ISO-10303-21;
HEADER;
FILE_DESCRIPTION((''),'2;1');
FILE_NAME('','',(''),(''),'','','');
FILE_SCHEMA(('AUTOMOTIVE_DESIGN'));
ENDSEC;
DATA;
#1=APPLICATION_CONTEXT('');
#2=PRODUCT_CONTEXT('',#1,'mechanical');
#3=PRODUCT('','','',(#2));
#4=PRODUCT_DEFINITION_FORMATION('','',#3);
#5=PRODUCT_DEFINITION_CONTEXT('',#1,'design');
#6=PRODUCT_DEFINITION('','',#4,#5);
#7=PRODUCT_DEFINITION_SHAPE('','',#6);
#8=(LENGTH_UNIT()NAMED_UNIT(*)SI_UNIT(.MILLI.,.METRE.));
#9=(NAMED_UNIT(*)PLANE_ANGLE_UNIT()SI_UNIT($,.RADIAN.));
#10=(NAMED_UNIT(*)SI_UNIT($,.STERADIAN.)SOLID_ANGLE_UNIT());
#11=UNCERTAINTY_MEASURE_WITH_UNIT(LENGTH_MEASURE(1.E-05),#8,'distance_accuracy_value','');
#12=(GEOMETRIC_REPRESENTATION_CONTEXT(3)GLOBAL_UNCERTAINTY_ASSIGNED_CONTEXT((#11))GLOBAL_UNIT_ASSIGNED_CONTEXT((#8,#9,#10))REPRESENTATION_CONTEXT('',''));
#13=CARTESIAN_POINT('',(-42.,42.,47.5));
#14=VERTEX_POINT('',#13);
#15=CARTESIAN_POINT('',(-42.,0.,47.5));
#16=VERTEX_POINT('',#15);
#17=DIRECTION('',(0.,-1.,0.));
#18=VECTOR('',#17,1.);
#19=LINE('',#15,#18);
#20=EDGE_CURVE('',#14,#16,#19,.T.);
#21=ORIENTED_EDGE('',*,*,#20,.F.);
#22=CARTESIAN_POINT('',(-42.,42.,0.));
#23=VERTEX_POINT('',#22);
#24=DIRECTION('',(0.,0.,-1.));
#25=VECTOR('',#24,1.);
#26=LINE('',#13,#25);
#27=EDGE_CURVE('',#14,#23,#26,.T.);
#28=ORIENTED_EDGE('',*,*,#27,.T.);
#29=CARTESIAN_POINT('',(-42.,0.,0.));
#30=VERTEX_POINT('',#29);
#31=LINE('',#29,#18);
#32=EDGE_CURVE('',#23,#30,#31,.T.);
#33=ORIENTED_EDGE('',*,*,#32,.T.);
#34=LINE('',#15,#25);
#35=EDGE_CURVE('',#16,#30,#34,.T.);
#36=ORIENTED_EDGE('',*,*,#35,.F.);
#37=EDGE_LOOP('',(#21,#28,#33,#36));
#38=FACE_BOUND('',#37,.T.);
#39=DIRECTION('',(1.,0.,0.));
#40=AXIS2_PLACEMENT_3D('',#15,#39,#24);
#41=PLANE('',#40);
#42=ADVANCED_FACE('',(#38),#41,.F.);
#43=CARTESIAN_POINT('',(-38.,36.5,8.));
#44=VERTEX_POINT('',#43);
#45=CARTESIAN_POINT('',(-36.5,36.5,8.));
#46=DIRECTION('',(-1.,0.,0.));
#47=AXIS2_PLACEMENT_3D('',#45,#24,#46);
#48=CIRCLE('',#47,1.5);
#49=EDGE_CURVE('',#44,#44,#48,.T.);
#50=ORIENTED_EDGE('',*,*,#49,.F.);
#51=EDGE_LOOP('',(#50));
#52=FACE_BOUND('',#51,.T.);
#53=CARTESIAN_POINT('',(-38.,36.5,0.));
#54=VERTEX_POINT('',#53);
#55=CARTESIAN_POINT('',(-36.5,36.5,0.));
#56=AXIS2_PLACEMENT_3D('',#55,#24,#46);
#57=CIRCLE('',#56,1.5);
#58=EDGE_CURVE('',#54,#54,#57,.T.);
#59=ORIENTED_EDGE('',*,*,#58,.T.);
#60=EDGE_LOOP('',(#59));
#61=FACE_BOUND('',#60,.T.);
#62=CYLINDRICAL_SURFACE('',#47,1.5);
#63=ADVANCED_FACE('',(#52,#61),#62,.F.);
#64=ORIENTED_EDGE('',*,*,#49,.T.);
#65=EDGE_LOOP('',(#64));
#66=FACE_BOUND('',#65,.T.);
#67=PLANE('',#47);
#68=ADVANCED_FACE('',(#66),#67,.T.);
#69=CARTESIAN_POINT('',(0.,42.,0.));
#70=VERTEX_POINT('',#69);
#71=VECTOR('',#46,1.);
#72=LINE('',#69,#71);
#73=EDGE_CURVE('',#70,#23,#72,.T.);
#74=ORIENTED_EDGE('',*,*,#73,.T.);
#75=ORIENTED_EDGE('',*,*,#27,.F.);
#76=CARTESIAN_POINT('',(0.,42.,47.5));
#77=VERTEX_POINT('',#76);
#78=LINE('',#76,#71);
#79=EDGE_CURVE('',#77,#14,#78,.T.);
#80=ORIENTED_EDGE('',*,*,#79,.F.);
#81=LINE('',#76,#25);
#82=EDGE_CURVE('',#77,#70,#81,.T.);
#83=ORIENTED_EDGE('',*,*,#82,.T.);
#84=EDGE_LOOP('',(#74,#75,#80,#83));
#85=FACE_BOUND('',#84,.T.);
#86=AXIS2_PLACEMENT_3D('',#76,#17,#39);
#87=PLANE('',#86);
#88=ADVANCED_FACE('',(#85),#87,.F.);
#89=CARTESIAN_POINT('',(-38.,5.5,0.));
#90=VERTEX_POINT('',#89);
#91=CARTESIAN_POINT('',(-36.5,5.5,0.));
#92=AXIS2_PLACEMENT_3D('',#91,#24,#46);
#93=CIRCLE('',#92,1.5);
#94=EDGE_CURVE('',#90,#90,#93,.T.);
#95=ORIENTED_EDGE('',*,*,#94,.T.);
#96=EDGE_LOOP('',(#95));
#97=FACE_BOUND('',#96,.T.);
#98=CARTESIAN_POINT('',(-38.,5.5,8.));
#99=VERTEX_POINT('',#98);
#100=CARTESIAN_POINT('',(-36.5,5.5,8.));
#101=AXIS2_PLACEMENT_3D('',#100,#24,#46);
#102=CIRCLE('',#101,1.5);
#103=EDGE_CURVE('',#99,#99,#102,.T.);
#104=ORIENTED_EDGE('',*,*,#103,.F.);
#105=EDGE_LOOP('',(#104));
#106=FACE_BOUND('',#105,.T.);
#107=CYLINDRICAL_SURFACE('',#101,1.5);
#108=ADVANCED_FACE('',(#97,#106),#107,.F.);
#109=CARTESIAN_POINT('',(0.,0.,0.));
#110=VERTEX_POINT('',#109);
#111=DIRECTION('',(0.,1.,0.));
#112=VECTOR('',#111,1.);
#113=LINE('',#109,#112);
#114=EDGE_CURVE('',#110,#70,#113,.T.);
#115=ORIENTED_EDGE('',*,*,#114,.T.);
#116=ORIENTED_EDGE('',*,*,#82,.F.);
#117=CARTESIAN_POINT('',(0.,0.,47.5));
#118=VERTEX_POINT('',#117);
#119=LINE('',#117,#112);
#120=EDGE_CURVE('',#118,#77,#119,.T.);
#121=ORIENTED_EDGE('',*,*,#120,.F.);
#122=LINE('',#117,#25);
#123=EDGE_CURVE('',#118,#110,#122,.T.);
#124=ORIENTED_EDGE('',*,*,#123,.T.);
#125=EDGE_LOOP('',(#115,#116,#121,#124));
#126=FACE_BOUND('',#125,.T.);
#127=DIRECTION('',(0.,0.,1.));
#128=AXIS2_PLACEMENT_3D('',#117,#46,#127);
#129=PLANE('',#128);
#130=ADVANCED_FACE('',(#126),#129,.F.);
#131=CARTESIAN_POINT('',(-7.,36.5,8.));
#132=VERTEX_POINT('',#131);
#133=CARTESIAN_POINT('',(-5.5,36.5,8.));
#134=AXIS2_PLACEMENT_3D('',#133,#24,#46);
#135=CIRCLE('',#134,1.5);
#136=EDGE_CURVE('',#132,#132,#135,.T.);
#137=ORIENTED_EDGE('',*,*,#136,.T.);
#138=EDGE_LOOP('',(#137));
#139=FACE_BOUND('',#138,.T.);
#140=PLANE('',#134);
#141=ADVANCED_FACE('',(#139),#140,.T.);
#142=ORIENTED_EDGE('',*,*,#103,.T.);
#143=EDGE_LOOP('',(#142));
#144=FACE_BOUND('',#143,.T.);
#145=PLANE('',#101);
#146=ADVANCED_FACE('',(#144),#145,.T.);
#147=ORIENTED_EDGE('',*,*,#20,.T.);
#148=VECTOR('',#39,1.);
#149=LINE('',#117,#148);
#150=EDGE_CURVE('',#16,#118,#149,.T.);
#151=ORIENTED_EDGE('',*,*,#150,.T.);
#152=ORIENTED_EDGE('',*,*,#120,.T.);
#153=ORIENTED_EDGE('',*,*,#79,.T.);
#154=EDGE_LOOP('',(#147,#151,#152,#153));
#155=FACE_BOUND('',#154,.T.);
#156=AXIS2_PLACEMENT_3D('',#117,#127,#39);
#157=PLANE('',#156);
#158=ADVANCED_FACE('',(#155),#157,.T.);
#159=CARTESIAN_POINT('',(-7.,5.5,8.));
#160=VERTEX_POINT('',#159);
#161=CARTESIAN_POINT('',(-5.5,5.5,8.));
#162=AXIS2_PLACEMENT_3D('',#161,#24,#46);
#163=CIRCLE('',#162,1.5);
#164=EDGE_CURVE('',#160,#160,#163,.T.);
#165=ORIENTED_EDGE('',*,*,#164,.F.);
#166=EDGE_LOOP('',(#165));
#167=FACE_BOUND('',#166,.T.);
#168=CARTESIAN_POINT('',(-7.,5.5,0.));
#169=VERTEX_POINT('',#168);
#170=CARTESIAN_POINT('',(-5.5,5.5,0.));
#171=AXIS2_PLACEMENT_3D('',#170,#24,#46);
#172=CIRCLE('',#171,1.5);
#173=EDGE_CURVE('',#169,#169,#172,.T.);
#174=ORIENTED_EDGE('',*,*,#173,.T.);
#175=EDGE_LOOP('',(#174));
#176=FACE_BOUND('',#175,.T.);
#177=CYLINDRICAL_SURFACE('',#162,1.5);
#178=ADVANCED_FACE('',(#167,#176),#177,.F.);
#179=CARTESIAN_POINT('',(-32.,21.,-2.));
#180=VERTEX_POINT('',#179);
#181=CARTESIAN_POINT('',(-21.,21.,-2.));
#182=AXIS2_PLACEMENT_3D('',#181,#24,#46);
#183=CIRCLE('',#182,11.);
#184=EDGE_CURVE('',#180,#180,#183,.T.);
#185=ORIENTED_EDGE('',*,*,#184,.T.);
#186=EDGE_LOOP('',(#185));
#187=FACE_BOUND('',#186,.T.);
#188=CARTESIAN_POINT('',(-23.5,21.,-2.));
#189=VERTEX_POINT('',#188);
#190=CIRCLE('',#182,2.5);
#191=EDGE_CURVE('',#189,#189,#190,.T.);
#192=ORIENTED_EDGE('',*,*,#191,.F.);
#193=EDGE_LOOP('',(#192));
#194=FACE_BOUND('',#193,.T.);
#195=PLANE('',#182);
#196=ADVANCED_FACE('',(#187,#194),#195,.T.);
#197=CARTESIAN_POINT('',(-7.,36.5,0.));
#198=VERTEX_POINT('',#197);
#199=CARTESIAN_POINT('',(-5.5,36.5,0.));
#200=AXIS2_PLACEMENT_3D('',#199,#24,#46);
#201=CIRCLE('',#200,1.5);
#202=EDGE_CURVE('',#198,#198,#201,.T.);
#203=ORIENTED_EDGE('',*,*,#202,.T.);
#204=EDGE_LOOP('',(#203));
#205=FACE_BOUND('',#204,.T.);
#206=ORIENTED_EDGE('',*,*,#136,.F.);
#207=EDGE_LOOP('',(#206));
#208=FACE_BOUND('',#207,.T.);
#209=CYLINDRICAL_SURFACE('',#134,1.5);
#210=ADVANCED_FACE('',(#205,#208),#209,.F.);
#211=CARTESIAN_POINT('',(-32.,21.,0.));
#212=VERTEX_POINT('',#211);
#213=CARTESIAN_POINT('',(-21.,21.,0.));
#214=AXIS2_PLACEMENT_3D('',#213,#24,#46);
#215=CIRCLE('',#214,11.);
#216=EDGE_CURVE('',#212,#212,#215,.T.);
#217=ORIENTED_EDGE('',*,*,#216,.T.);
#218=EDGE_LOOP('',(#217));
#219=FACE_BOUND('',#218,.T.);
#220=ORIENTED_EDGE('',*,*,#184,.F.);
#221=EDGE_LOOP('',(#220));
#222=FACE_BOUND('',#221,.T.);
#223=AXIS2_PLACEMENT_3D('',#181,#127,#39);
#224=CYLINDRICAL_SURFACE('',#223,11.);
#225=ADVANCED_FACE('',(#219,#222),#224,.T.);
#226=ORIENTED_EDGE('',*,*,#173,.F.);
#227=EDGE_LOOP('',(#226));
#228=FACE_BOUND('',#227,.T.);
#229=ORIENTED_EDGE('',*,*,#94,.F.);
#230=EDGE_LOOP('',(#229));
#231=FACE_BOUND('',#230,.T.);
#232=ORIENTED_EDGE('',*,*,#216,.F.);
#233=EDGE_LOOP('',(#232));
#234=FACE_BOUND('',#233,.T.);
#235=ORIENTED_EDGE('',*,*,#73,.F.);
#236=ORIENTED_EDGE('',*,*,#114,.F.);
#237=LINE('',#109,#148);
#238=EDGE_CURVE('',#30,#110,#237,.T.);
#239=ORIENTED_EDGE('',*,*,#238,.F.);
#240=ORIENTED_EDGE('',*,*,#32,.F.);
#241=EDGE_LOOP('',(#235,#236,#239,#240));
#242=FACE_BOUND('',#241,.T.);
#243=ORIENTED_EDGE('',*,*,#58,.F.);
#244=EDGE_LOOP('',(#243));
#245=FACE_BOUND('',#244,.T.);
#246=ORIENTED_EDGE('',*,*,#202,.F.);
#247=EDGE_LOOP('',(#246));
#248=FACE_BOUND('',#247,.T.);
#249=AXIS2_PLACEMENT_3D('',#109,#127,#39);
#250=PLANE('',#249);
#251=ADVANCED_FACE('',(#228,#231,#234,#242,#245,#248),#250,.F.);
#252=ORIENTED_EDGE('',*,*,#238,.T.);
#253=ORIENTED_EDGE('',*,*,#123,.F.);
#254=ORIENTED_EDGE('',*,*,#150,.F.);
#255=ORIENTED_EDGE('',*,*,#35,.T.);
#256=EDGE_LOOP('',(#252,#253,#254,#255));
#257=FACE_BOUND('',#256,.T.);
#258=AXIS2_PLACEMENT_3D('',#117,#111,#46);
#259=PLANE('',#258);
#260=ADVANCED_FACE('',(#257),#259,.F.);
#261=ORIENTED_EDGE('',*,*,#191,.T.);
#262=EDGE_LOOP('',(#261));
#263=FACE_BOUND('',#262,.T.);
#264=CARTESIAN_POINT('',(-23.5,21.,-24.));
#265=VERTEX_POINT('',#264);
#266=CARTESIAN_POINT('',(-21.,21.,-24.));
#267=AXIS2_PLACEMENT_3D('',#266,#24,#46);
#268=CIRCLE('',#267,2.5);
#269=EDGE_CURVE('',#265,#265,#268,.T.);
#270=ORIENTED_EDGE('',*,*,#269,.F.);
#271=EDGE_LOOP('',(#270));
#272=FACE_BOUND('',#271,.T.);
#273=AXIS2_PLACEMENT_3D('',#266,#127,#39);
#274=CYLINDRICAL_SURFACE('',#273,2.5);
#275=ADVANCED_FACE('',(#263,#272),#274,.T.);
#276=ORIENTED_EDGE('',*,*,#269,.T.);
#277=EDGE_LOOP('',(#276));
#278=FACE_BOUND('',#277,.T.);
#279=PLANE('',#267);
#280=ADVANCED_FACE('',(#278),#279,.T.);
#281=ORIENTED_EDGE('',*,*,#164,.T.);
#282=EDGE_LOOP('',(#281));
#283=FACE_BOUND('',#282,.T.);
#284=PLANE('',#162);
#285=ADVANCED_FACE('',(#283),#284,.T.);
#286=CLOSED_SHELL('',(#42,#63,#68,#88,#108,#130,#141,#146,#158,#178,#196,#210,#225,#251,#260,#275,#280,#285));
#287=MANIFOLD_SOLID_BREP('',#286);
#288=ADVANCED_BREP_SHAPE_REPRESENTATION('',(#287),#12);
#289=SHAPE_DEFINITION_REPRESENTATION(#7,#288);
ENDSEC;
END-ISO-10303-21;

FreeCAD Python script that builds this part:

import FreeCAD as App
import Part
import Sketcher
from FreeCAD import Vector


def add_polygon(sketch, points):
    """Adds a closed chain of lines whose ends are joined by coincident constraints."""
    first, n = sketch.GeometryCount, len(points)
    for a, b in zip(points, points[1:] + points[:1]):
        sketch.addGeometry(Part.LineSegment(App.Vector(*a, 0), App.Vector(*b, 0)), False)
    for i in range(n):
        sketch.addConstraint(Sketcher.Constraint("Coincident", first + i, 2, first + (i + 1) % n, 1))

doc = App.newDocument("Part")
params = doc.addObject("Spreadsheet::Sheet", "Params")
for row, (alias, value) in enumerate([
    ("sketch1_width", "42 mm"),
    ("pad1_length", "47.5 mm"),
    ("sketch2_diameter", "22 mm"),
    ("pad2_length", "2 mm"),
    ("sketch3_diameter", "5 mm"),
    ("pad3_length", "22 mm"),
    ("sketch4_diameter", "3 mm"),
    ("pocket1_length", "8 mm"),
], start=1):
    params.set(f"A{row}", alias)
    params.set(f"B{row}", "=" + value)
    params.setAlias(f"B{row}", alias)

body = doc.addObject("PartDesign::Body", "Body")

# Sketch on XY plane
sketch1 = body.newObject("Sketcher::SketchObject", "Sketch")
sketch1.AttachmentSupport = (doc.getObject("XY_Plane"), [""])
sketch1.MapMode = "FlatFace"
add_polygon(sketch1, [(-42, 42), (-42, 0), (0, 0), (0, 42)])  # lines 0-3
sketch1.addConstraint([
    Sketcher.Constraint("Vertical", 0),
    Sketcher.Constraint("Horizontal", 1),
    Sketcher.Constraint("Vertical", 2),
    Sketcher.Constraint("Horizontal", 3),
    Sketcher.Constraint("Coincident", 1, 2, -1, 1),
    Sketcher.Constraint("Equal", 3, 0),
    Sketcher.Constraint("DistanceX", 1, 1, 1, 2, 42.0),
])
sketch1.setExpression("Constraints[10]", "Params.sketch1_width")
pad1 = body.newObject("PartDesign::Pad", "Pad")
pad1.Profile = sketch1
pad1.setExpression("Length", "Params.pad1_length")

# Sketch on XY plane
sketch2 = body.newObject("Sketcher::SketchObject", "Sketch001")
sketch2.AttachmentSupport = (doc.getObject("XY_Plane"), [""])
sketch2.MapMode = "FlatFace"
sketch2.addGeometry(Part.Circle(Vector(-21, 21, 0), Vector(0, 0, 1), 11), False)
sketch2.addConstraint([
    Sketcher.Constraint("Diameter", 0, 22.0),
    Sketcher.Constraint("DistanceX", 0, 3, -1, 1, 21.0),
    Sketcher.Constraint("DistanceY", -1, 1, 0, 3, 21.0),
])
sketch2.setExpression("Constraints[0]", "Params.sketch2_diameter")
pad2 = body.newObject("PartDesign::Pad", "Pad001")
pad2.Profile = sketch2
pad2.setExpression("Length", "Params.pad2_length")
pad2.Reversed = True

# Sketch on XY plane
sketch3 = body.newObject("Sketcher::SketchObject", "Sketch002")
sketch3.AttachmentSupport = (doc.getObject("XY_Plane"), [""])
sketch3.MapMode = "FlatFace"
sketch3.AttachmentOffset = App.Placement(Vector(0, 0, -2), App.Rotation())
sketch3.addGeometry(Part.Circle(Vector(-21, 21, 0), Vector(0, 0, 1), 2.5), False)
sketch3.addConstraint([
    Sketcher.Constraint("Diameter", 0, 5.0),
    Sketcher.Constraint("DistanceX", 0, 3, -1, 1, 21.0),
    Sketcher.Constraint("DistanceY", -1, 1, 0, 3, 21.0),
])
sketch3.setExpression("Constraints[0]", "Params.sketch3_diameter")
pad3 = body.newObject("PartDesign::Pad", "Pad002")
pad3.Profile = sketch3
pad3.setExpression("Length", "Params.pad3_length")
pad3.Reversed = True

# Sketch on XY plane
sketch4 = body.newObject("Sketcher::SketchObject", "Sketch003")
sketch4.AttachmentSupport = (doc.getObject("XY_Plane"), [""])
sketch4.MapMode = "FlatFace"
sketch4.addGeometry([
    Part.Circle(Vector(-5.5, 5.5, 0), Vector(0, 0, 1), 1.5),
    Part.Circle(Vector(-36.5, 5.5, 0), Vector(0, 0, 1), 1.5),
    Part.Circle(Vector(-36.5, 36.5, 0), Vector(0, 0, 1), 1.5),
    Part.Circle(Vector(-5.5, 36.5, 0), Vector(0, 0, 1), 1.5),
], False)
sketch4.addConstraint([
    Sketcher.Constraint("Equal", 0, 1),
    Sketcher.Constraint("Equal", 1, 2),
    Sketcher.Constraint("Equal", 2, 3),
    Sketcher.Constraint("Horizontal", 0, 3, 1, 3),
    Sketcher.Constraint("Horizontal", 2, 3, 3, 3),
    Sketcher.Constraint("Vertical", 1, 3, 2, 3),
    Sketcher.Constraint("Vertical", 0, 3, 3, 3),
    Sketcher.Constraint("Diameter", 0, 3.0),
    Sketcher.Constraint("DistanceX", 1, 3, 0, 3, 31.0),
    Sketcher.Constraint("DistanceY", 1, 3, 2, 3, 31.0),
    Sketcher.Constraint("DistanceX", 0, 3, -1, 1, 5.5),
    Sketcher.Constraint("DistanceY", -1, 1, 0, 3, 5.5),
])
sketch4.setExpression("Constraints[7]", "Params.sketch4_diameter")
pocket1 = body.newObject("PartDesign::Pocket", "Pocket")
pocket1.Profile = sketch4
pocket1.setExpression("Length", "Params.pocket1_length")
pocket1.Reversed = True

doc.recompute()
